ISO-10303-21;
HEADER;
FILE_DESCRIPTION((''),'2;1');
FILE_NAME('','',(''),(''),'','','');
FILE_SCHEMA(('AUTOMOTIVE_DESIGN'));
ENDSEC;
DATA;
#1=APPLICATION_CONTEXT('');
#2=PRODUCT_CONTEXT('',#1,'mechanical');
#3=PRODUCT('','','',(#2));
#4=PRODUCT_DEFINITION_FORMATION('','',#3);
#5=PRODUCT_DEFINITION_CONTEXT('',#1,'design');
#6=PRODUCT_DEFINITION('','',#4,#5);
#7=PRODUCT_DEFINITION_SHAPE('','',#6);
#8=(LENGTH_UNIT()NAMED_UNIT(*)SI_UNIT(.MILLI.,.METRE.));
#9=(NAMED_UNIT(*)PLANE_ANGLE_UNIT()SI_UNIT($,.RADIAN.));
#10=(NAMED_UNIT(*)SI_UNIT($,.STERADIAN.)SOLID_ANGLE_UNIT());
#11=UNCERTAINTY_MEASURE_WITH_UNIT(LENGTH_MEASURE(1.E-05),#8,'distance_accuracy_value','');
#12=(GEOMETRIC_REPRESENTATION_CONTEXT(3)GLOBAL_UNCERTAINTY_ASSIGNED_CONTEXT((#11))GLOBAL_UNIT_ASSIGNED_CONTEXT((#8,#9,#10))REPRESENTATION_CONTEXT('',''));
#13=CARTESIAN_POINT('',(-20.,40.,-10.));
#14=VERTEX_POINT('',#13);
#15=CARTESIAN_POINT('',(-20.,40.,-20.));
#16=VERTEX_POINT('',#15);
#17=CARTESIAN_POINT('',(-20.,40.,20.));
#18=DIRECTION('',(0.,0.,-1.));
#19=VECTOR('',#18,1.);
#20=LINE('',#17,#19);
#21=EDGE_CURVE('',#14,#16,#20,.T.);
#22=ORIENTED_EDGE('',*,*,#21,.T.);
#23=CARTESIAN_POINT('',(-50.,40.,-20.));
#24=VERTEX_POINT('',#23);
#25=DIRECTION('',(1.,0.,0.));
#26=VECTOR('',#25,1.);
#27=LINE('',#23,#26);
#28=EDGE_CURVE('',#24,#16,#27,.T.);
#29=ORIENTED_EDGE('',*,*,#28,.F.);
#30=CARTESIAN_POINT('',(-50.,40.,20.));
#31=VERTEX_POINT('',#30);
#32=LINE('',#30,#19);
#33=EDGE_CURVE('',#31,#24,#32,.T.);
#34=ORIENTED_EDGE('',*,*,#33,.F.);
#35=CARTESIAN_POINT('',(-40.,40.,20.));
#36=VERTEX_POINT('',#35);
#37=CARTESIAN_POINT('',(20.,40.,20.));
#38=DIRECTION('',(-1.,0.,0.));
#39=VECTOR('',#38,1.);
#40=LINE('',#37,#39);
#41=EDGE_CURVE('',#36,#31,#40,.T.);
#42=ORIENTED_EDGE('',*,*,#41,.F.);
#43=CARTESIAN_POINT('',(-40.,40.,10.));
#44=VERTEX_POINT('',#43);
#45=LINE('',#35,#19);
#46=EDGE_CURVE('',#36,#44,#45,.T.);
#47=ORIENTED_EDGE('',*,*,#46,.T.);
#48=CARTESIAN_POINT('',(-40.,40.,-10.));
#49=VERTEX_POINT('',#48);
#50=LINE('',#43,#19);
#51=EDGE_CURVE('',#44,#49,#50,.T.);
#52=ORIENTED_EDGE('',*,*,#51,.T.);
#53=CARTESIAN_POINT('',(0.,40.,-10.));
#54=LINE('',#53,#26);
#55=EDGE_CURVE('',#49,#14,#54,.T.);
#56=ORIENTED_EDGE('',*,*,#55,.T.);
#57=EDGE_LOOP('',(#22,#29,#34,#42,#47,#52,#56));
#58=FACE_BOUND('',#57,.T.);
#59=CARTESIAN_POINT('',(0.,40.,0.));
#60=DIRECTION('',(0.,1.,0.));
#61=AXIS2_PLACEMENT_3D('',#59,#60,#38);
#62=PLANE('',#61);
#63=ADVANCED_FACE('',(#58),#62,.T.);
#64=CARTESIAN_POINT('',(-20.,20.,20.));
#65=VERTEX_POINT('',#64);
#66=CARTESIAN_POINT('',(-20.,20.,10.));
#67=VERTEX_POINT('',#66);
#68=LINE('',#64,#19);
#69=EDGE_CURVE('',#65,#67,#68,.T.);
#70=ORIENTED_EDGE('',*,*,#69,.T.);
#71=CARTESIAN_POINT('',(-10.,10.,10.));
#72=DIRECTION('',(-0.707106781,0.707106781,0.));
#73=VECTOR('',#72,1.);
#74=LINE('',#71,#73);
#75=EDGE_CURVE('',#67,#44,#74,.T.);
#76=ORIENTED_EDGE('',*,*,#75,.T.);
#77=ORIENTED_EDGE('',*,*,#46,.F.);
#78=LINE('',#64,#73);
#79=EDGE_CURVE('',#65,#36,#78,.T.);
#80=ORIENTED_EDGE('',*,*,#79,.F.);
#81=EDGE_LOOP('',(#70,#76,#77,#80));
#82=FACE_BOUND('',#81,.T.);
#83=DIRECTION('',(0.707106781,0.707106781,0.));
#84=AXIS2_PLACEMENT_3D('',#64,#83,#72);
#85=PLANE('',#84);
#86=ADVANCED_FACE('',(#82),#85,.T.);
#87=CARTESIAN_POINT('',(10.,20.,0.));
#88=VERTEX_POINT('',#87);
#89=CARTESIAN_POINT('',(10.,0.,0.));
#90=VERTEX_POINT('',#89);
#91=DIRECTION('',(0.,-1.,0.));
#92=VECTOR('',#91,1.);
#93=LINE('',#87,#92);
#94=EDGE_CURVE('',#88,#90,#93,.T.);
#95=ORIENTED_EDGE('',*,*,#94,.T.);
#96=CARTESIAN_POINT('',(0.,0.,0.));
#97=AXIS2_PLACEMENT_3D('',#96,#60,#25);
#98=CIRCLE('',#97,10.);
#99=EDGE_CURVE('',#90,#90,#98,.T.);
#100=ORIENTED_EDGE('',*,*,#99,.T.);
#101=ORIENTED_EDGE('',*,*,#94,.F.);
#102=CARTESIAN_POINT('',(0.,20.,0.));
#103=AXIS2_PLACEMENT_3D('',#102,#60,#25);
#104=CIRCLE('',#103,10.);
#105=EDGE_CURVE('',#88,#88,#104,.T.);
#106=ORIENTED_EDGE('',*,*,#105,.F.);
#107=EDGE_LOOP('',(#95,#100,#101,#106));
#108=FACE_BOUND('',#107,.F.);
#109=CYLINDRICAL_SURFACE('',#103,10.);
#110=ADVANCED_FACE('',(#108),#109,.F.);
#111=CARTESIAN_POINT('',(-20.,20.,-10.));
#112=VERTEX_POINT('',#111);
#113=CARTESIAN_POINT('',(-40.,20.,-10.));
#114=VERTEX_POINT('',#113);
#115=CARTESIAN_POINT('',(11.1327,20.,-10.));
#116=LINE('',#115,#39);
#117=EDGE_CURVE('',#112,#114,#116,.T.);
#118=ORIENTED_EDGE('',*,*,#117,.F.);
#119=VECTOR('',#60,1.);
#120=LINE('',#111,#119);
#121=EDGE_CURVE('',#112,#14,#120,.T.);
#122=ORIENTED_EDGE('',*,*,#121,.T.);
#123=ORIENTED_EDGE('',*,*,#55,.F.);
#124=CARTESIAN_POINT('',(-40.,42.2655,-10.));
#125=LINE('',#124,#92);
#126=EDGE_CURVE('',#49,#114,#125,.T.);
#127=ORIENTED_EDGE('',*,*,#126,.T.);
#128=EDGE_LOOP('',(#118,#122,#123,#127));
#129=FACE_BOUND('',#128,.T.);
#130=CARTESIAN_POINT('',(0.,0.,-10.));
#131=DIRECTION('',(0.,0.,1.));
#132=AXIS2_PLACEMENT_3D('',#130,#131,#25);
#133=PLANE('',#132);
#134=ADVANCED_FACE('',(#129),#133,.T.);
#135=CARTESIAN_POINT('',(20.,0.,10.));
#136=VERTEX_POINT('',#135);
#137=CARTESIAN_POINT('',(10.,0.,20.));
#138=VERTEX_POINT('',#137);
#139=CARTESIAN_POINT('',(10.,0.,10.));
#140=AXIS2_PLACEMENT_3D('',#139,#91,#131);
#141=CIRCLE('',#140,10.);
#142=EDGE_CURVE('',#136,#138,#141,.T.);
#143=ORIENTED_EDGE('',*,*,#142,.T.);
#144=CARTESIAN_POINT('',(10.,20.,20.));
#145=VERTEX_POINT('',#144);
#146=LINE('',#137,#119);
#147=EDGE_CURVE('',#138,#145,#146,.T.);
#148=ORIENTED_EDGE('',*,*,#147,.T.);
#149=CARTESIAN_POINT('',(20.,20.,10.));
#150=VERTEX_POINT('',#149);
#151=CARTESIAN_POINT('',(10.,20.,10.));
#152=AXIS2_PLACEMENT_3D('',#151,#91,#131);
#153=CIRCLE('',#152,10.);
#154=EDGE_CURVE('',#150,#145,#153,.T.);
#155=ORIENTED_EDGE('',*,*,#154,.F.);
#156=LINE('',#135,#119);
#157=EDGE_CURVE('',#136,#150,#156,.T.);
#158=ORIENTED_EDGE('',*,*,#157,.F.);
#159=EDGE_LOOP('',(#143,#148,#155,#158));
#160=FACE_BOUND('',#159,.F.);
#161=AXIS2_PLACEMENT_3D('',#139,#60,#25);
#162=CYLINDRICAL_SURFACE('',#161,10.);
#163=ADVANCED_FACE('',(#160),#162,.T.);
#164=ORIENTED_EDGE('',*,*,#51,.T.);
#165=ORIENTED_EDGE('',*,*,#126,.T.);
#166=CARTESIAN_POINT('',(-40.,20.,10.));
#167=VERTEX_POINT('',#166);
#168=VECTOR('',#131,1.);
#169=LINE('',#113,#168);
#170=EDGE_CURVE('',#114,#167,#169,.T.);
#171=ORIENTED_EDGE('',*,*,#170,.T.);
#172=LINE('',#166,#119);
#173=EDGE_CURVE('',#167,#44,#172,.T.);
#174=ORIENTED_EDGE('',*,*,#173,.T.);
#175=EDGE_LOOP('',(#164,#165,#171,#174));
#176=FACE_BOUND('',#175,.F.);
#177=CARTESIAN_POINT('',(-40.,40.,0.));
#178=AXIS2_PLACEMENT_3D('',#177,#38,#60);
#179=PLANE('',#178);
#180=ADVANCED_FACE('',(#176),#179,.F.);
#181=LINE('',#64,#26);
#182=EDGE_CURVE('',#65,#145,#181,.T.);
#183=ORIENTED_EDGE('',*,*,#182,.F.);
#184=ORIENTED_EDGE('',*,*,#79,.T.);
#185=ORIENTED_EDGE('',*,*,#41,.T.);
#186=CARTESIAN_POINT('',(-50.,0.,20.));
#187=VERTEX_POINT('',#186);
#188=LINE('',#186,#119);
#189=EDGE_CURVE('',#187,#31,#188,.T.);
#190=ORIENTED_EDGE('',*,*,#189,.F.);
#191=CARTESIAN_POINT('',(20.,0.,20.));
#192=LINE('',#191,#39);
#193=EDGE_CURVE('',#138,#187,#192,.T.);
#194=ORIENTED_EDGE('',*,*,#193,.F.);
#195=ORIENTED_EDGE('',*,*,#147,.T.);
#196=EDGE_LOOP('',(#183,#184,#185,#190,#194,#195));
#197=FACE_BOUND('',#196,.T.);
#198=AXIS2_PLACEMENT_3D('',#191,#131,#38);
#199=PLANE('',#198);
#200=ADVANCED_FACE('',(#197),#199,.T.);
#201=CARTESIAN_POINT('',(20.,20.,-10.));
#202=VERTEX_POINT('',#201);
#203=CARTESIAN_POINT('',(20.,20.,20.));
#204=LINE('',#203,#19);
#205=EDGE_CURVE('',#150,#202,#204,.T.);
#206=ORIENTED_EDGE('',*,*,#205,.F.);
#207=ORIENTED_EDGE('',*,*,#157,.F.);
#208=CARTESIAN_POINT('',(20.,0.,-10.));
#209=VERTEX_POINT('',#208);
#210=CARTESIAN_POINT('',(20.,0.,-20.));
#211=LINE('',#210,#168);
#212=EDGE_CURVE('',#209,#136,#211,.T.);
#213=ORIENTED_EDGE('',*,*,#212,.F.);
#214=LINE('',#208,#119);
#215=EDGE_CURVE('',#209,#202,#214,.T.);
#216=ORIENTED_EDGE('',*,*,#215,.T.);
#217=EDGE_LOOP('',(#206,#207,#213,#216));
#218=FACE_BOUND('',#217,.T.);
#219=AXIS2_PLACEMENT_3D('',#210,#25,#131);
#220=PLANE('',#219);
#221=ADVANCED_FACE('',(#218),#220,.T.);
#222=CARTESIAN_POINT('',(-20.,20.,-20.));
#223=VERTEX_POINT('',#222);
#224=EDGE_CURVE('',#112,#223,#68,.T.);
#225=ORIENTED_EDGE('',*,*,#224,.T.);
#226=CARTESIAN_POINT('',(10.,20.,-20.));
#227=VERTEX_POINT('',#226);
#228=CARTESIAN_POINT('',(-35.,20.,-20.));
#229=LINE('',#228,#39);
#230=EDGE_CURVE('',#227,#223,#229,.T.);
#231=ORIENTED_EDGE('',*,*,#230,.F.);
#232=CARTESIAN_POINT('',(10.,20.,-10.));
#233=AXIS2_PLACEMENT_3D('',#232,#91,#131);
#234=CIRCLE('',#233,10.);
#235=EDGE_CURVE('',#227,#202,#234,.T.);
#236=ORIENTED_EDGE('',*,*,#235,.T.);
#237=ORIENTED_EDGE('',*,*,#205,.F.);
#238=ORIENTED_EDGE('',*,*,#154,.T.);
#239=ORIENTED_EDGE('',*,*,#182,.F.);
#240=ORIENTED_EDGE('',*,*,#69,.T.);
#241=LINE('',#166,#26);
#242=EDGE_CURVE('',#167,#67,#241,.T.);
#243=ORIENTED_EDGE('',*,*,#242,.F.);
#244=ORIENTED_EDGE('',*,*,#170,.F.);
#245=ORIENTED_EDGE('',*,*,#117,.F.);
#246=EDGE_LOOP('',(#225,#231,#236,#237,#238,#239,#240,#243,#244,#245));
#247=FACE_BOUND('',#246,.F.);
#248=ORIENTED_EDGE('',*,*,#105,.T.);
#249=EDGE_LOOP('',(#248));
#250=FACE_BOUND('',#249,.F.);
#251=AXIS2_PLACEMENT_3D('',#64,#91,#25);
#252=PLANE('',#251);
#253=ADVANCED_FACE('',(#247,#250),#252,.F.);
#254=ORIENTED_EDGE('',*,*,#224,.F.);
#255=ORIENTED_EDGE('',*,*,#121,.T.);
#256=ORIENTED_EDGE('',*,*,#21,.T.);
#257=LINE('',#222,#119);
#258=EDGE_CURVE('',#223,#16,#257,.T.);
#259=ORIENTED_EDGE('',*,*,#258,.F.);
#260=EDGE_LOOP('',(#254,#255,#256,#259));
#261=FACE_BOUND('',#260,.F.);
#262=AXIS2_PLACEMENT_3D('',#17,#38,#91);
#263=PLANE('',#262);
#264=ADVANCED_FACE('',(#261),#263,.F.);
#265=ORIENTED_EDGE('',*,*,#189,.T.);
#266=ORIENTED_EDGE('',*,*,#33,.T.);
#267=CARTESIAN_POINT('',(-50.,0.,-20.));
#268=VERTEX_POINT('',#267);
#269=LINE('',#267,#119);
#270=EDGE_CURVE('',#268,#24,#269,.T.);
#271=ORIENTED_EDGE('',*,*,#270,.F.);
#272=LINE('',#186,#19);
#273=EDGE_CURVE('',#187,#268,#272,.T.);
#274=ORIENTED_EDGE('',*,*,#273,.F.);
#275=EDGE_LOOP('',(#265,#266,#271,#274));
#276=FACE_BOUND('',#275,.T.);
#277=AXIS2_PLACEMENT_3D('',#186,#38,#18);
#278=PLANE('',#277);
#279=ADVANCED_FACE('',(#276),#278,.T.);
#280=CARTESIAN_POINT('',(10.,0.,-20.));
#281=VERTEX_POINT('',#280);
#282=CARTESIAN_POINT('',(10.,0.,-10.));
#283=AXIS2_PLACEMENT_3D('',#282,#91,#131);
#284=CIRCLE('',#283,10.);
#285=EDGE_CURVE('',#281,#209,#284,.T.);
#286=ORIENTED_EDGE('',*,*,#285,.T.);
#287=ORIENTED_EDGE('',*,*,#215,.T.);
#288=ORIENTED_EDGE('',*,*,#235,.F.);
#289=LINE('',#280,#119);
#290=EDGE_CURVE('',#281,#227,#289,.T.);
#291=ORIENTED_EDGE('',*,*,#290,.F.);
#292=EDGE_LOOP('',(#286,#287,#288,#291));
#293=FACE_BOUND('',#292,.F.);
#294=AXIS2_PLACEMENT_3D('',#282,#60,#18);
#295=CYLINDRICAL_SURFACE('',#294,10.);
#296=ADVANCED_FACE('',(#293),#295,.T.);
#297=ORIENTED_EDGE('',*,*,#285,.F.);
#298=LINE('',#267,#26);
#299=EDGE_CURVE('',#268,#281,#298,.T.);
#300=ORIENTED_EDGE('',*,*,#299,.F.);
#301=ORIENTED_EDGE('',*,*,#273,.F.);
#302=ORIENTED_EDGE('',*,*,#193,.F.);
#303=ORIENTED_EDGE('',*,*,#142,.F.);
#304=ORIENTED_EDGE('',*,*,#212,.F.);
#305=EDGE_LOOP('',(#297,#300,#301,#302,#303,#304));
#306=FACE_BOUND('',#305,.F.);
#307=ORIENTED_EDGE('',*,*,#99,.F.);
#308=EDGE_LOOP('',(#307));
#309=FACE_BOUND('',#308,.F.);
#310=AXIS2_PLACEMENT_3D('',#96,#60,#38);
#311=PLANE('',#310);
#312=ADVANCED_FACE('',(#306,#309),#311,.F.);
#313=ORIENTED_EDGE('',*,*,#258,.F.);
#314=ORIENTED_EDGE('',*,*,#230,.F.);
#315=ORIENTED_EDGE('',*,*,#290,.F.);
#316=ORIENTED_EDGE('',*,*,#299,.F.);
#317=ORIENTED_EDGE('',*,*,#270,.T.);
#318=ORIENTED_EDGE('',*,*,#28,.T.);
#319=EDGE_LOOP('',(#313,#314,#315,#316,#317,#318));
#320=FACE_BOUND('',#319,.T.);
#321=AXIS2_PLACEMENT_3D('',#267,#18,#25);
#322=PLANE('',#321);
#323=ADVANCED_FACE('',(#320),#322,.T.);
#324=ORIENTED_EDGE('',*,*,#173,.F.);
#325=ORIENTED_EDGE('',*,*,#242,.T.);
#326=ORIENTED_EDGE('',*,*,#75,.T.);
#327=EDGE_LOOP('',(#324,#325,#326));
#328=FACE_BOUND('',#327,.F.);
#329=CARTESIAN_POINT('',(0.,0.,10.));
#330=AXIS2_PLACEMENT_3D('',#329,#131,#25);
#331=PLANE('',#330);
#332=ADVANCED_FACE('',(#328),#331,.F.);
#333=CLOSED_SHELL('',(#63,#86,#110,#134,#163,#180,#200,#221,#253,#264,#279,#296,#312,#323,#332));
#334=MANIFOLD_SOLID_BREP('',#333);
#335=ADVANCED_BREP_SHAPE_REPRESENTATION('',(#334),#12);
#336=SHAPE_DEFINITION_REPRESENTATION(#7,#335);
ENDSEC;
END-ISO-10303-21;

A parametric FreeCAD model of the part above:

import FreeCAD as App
import Part
import Sketcher
Q = App.Units.Quantity


def edges_at(feature, points):
    """Names of the edges that pass closest to the given points."""
    edges = feature.Shape.Edges
    near = lambda p: min(range(len(edges)), key=lambda i: edges[i].distToShape(Part.Vertex(*p))[0])
    return sorted({f"Edge{near(p) + 1}" for p in points})

doc = App.newDocument("Part")
body = doc.addObject("PartDesign::Body", "Body")

sketch1 = doc.addObject("Sketcher::SketchObject", "Sketch")
body.addObject(sketch1)
sketch1.AttachmentSupport = (doc.XZ_Plane, [""])
sketch1.MapMode = "FlatFace"
sketch1.addGeometry(Part.LineSegment(App.Vector(20, -20, 0), App.Vector(-50, -20, 0)), False)
sketch1.addGeometry(Part.LineSegment(App.Vector(-50, -20, 0), App.Vector(-50, 20, 0)), False)
sketch1.addGeometry(Part.LineSegment(App.Vector(-50, 20, 0), App.Vector(20, 20, 0)), False)
sketch1.addGeometry(Part.LineSegment(App.Vector(20, 20, 0), App.Vector(20, -20, 0)), False)
sketch1.addConstraint(Sketcher.Constraint("Coincident", 0, 2, 1, 1))
sketch1.addConstraint(Sketcher.Constraint("Coincident", 1, 2, 2, 1))
sketch1.addConstraint(Sketcher.Constraint("Coincident", 2, 2, 3, 1))
sketch1.addConstraint(Sketcher.Constraint("Coincident", 3, 2, 0, 1))
sketch1.addConstraint(Sketcher.Constraint("Horizontal", 0))
sketch1.addConstraint(Sketcher.Constraint("Vertical", 1))
sketch1.addConstraint(Sketcher.Constraint("Horizontal", 2))
sketch1.addConstraint(Sketcher.Constraint("Vertical", 3))
sketch1.addConstraint(Sketcher.Constraint("DistanceX", 0, 2, 0, 1, Q("70 mm")))
sketch1.addConstraint(Sketcher.Constraint("DistanceY", 1, 1, 1, 2, Q("40 mm")))
sketch1.addConstraint(Sketcher.Constraint("DistanceY", 0, 2, -1, 1, Q("20 mm")))
sketch1.addConstraint(Sketcher.Constraint("DistanceX", -1, 1, 2, 2, Q("20 mm")))
pad1 = doc.addObject("PartDesign::Pad", "Pad")
body.addObject(pad1)
pad1.Profile = sketch1
pad1.Length = 40
pad1.Reversed = True

sketch2 = doc.addObject("Sketcher::SketchObject", "Sketch001")
body.addObject(sketch2)
sketch2.AttachmentSupport = (doc.XY_Plane, [""])
sketch2.MapMode = "FlatFace"
sketch2.AttachmentOffset = App.Placement(App.Vector(0, 0, 20), App.Rotation())
sketch2.addGeometry(Part.LineSegment(App.Vector(20, 40, 0), App.Vector(-20, 40, 0)), False)
sketch2.addGeometry(Part.LineSegment(App.Vector(-20, 40, 0), App.Vector(-20, 20, 0)), False)
sketch2.addGeometry(Part.LineSegment(App.Vector(-20, 20, 0), App.Vector(20, 20, 0)), False)
sketch2.addGeometry(Part.LineSegment(App.Vector(20, 20, 0), App.Vector(20, 40, 0)), False)
sketch2.addConstraint(Sketcher.Constraint("Coincident", 0, 2, 1, 1))
sketch2.addConstraint(Sketcher.Constraint("Coincident", 1, 2, 2, 1))
sketch2.addConstraint(Sketcher.Constraint("Coincident", 2, 2, 3, 1))
sketch2.addConstraint(Sketcher.Constraint("Coincident", 3, 2, 0, 1))
sketch2.addConstraint(Sketcher.Constraint("Horizontal", 0))
sketch2.addConstraint(Sketcher.Constraint("Vertical", 1))
sketch2.addConstraint(Sketcher.Constraint("Horizontal", 2))
sketch2.addConstraint(Sketcher.Constraint("Vertical", 3))
sketch2.addConstraint(Sketcher.Constraint("DistanceX", 0, 2, 0, 1, Q("40 mm")))
sketch2.addConstraint(Sketcher.Constraint("DistanceY", 1, 2, 1, 1, Q("20 mm")))
sketch2.addConstraint(Sketcher.Constraint("DistanceX", 0, 2, -1, 1, Q("20 mm")))
sketch2.addConstraint(Sketcher.Constraint("DistanceY", -1, 1, 0, 2, Q("40 mm")))
pocket1 = doc.addObject("PartDesign::Pocket", "Pocket")
body.addObject(pocket1)
pocket1.Profile = sketch2
pocket1.Type = "ThroughAll"

sketch3 = doc.addObject("Sketcher::SketchObject", "Sketch002")
body.addObject(sketch3)
sketch3.AttachmentSupport = (doc.XY_Plane, [""])
sketch3.MapMode = "FlatFace"
sketch3.addGeometry(Part.LineSegment(App.Vector(-40, 42, 0), App.Vector(-40, 20, 0)), False)
sketch3.addGeometry(Part.LineSegment(App.Vector(-40, 20, 0), App.Vector(11, 20, 0)), False)
sketch3.addGeometry(Part.LineSegment(App.Vector(11, 20, 0), App.Vector(11, 42, 0)), False)
sketch3.addGeometry(Part.LineSegment(App.Vector(11, 42, 0), App.Vector(-40, 42, 0)), False)
sketch3.addConstraint(Sketcher.Constraint("Coincident", 0, 2, 1, 1))
sketch3.addConstraint(Sketcher.Constraint("Coincident", 1, 2, 2, 1))
sketch3.addConstraint(Sketcher.Constraint("Coincident", 2, 2, 3, 1))
sketch3.addConstraint(Sketcher.Constraint("Coincident", 3, 2, 0, 1))
sketch3.addConstraint(Sketcher.Constraint("Vertical", 0))
sketch3.addConstraint(Sketcher.Constraint("Horizontal", 1))
sketch3.addConstraint(Sketcher.Constraint("Vertical", 2))
sketch3.addConstraint(Sketcher.Constraint("Horizontal", 3))
sketch3.addConstraint(Sketcher.Constraint("DistanceX", 0, 2, -1, 1, Q("40 mm")))
sketch3.addConstraint(Sketcher.Constraint("DistanceY", -1, 1, 0, 2, Q("20 mm")))
sketch3.addConstraint(Sketcher.Constraint("DistanceX", 1, 1, 1, 2, Q("51.1327 mm")))
sketch3.addConstraint(Sketcher.Constraint("DistanceY", 0, 2, 0, 1, Q("22.2655 mm")))
pocket2 = doc.addObject("PartDesign::Pocket", "Pocket001")
body.addObject(pocket2)
pocket2.Profile = sketch3
pocket2.Length = 20
pocket2.Midplane = True

sketch4 = doc.addObject("Sketcher::SketchObject", "Sketch003")
body.addObject(sketch4)
sketch4.AttachmentSupport = (doc.XY_Plane, [""])
sketch4.MapMode = "FlatFace"
sketch4.AttachmentOffset = App.Placement(App.Vector(0, 0, 20), App.Rotation())
sketch4.addGeometry(Part.LineSegment(App.Vector(-20, 40, 0), App.Vector(-40, 40, 0)), False)
sketch4.addGeometry(Part.LineSegment(App.Vector(-40, 40, 0), App.Vector(-20, 20, 0)), False)
sketch4.addGeometry(Part.LineSegment(App.Vector(-20, 20, 0), App.Vector(-20, 40, 0)), False)
sketch4.addConstraint(Sketcher.Constraint("Coincident", 0, 2, 1, 1))
sketch4.addConstraint(Sketcher.Constraint("Coincident", 1, 2, 2, 1))
sketch4.addConstraint(Sketcher.Constraint("Coincident", 2, 2, 0, 1))
sketch4.addConstraint(Sketcher.Constraint("Horizontal", 0))
sketch4.addConstraint(Sketcher.Constraint("Vertical", 2))
sketch4.addConstraint(Sketcher.Constraint("Equal", 0, 2))
sketch4.addConstraint(Sketcher.Constraint("DistanceX", 0, 2, 0, 1, Q("20 mm")))
sketch4.addConstraint(Sketcher.Constraint("DistanceX", 0, 2, -1, 1, Q("40 mm")))
sketch4.addConstraint(Sketcher.Constraint("DistanceY", -1, 1, 0, 2, Q("40 mm")))
pocket3 = doc.addObject("PartDesign::Pocket", "Pocket002")
body.addObject(pocket3)
pocket3.Profile = sketch4
pocket3.Length = 17.25

sketch5 = doc.addObject("Sketcher::SketchObject", "Sketch004")
body.addObject(sketch5)
sketch5.AttachmentSupport = (doc.XZ_Plane, [""])
sketch5.MapMode = "FlatFace"
sketch5.AttachmentOffset = App.Placement(App.Vector(0, 0, -20), App.Rotation())
sketch5.addGeometry(Part.Circle(App.Vector(0, 0, 0), App.Vector(0, 0, 1), 10), False)
sketch5.addConstraint(Sketcher.Constraint("Coincident", 0, 3, -1, 1))
sketch5.addConstraint(Sketcher.Constraint("Diameter", 0, Q("20 mm")))
pocket4 = doc.addObject("PartDesign::Pocket", "Pocket003")
body.addObject(pocket4)
pocket4.Profile = sketch5
pocket4.Type = "ThroughAll"
pocket4.Reversed = True
doc.recompute()

fillet = doc.addObject("PartDesign::Fillet", "Fillet")
body.addObject(fillet)
fillet.Base = (pocket4, edges_at(pocket4, [(20, 10, 20), (20, 10, -20)]))
fillet.Radius = 10

doc.recompute()
